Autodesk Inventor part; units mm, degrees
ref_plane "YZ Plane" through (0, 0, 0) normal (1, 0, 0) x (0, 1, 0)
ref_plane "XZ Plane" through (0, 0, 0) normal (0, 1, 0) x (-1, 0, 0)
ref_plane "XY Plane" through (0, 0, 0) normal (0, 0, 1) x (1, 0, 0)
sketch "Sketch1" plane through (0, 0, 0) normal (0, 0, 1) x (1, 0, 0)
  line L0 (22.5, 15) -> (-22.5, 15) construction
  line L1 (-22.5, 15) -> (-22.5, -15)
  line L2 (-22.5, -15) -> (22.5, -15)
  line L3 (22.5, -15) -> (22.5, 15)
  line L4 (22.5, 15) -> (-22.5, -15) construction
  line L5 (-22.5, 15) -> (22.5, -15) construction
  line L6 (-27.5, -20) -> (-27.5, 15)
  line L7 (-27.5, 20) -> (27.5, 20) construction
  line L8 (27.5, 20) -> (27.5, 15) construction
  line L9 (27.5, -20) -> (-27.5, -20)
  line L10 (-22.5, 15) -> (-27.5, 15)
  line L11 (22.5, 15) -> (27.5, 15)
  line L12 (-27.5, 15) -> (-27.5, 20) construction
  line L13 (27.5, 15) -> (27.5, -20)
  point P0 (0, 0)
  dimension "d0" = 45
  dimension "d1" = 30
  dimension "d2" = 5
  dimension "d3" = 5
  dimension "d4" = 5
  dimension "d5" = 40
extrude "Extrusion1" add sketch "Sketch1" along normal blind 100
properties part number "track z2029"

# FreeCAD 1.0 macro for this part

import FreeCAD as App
import Part
import Sketcher

V = App.Vector
Q = App.Units.Quantity

doc = App.newDocument("Part")
body = doc.addObject("PartDesign::Body", "Body")

sketch1 = body.newObject("Sketcher::SketchObject", "Sketch")
sketch1.AttachmentSupport = (doc.getObject("XY_Plane"), [""])
sketch1.MapMode = "FlatFace"
sketch1.addGeometry([
    Part.LineSegment(V(-22, -15, 0), V(-22, 15, 0)),
    Part.LineSegment(V(-22, 15, 0), V(-28, 15, 0)),
    Part.LineSegment(V(-28, 15, 0), V(-28, -20, 0)),
    Part.LineSegment(V(-28, -20, 0), V(28, -20, 0)),
    Part.LineSegment(V(28, -20, 0), V(28, 15, 0)),
    Part.LineSegment(V(28, 15, 0), V(22, 15, 0)),
    Part.LineSegment(V(22, 15, 0), V(22, -15, 0)),
    Part.LineSegment(V(22, -15, 0), V(-22, -15, 0)),
], False)
sketch1.addConstraint([
    Sketcher.Constraint("Coincident", 0, 2, 1, 1),
    Sketcher.Constraint("Coincident", 1, 2, 2, 1),
    Sketcher.Constraint("Coincident", 2, 2, 3, 1),
    Sketcher.Constraint("Coincident", 3, 2, 4, 1),
    Sketcher.Constraint("Coincident", 4, 2, 5, 1),
    Sketcher.Constraint("Coincident", 5, 2, 6, 1),
    Sketcher.Constraint("Coincident", 6, 2, 7, 1),
    Sketcher.Constraint("Coincident", 7, 2, 0, 1),
    Sketcher.Constraint("Vertical", 0),
    Sketcher.Constraint("Horizontal", 1),
    Sketcher.Constraint("Vertical", 2),
    Sketcher.Constraint("Horizontal", 3),
    Sketcher.Constraint("Vertical", 4),
    Sketcher.Constraint("Horizontal", 5),
    Sketcher.Constraint("Vertical", 6),
    Sketcher.Constraint("Horizontal", 7),
    Sketcher.Constraint("Symmetric", 0, 2, 6, 2, -1, 1),
    Sketcher.Constraint("Symmetric", 1, 2, 4, 2, -2),
    Sketcher.Constraint("DistanceX", 1, 2, 1, 1, Q("5 mm")),
    Sketcher.Constraint("DistanceX", 7, 2, 7, 1, Q("45 mm")),
    Sketcher.Constraint("DistanceY", 0, 1, 0, 2, Q("30 mm")),
    Sketcher.Constraint("DistanceY", 3, 2, 6, 2, Q("5 mm")),
])
pad1 = body.newObject("PartDesign::Pad", "Pad")
pad1.Profile = sketch1
pad1.Length = 100

doc.recompute()
